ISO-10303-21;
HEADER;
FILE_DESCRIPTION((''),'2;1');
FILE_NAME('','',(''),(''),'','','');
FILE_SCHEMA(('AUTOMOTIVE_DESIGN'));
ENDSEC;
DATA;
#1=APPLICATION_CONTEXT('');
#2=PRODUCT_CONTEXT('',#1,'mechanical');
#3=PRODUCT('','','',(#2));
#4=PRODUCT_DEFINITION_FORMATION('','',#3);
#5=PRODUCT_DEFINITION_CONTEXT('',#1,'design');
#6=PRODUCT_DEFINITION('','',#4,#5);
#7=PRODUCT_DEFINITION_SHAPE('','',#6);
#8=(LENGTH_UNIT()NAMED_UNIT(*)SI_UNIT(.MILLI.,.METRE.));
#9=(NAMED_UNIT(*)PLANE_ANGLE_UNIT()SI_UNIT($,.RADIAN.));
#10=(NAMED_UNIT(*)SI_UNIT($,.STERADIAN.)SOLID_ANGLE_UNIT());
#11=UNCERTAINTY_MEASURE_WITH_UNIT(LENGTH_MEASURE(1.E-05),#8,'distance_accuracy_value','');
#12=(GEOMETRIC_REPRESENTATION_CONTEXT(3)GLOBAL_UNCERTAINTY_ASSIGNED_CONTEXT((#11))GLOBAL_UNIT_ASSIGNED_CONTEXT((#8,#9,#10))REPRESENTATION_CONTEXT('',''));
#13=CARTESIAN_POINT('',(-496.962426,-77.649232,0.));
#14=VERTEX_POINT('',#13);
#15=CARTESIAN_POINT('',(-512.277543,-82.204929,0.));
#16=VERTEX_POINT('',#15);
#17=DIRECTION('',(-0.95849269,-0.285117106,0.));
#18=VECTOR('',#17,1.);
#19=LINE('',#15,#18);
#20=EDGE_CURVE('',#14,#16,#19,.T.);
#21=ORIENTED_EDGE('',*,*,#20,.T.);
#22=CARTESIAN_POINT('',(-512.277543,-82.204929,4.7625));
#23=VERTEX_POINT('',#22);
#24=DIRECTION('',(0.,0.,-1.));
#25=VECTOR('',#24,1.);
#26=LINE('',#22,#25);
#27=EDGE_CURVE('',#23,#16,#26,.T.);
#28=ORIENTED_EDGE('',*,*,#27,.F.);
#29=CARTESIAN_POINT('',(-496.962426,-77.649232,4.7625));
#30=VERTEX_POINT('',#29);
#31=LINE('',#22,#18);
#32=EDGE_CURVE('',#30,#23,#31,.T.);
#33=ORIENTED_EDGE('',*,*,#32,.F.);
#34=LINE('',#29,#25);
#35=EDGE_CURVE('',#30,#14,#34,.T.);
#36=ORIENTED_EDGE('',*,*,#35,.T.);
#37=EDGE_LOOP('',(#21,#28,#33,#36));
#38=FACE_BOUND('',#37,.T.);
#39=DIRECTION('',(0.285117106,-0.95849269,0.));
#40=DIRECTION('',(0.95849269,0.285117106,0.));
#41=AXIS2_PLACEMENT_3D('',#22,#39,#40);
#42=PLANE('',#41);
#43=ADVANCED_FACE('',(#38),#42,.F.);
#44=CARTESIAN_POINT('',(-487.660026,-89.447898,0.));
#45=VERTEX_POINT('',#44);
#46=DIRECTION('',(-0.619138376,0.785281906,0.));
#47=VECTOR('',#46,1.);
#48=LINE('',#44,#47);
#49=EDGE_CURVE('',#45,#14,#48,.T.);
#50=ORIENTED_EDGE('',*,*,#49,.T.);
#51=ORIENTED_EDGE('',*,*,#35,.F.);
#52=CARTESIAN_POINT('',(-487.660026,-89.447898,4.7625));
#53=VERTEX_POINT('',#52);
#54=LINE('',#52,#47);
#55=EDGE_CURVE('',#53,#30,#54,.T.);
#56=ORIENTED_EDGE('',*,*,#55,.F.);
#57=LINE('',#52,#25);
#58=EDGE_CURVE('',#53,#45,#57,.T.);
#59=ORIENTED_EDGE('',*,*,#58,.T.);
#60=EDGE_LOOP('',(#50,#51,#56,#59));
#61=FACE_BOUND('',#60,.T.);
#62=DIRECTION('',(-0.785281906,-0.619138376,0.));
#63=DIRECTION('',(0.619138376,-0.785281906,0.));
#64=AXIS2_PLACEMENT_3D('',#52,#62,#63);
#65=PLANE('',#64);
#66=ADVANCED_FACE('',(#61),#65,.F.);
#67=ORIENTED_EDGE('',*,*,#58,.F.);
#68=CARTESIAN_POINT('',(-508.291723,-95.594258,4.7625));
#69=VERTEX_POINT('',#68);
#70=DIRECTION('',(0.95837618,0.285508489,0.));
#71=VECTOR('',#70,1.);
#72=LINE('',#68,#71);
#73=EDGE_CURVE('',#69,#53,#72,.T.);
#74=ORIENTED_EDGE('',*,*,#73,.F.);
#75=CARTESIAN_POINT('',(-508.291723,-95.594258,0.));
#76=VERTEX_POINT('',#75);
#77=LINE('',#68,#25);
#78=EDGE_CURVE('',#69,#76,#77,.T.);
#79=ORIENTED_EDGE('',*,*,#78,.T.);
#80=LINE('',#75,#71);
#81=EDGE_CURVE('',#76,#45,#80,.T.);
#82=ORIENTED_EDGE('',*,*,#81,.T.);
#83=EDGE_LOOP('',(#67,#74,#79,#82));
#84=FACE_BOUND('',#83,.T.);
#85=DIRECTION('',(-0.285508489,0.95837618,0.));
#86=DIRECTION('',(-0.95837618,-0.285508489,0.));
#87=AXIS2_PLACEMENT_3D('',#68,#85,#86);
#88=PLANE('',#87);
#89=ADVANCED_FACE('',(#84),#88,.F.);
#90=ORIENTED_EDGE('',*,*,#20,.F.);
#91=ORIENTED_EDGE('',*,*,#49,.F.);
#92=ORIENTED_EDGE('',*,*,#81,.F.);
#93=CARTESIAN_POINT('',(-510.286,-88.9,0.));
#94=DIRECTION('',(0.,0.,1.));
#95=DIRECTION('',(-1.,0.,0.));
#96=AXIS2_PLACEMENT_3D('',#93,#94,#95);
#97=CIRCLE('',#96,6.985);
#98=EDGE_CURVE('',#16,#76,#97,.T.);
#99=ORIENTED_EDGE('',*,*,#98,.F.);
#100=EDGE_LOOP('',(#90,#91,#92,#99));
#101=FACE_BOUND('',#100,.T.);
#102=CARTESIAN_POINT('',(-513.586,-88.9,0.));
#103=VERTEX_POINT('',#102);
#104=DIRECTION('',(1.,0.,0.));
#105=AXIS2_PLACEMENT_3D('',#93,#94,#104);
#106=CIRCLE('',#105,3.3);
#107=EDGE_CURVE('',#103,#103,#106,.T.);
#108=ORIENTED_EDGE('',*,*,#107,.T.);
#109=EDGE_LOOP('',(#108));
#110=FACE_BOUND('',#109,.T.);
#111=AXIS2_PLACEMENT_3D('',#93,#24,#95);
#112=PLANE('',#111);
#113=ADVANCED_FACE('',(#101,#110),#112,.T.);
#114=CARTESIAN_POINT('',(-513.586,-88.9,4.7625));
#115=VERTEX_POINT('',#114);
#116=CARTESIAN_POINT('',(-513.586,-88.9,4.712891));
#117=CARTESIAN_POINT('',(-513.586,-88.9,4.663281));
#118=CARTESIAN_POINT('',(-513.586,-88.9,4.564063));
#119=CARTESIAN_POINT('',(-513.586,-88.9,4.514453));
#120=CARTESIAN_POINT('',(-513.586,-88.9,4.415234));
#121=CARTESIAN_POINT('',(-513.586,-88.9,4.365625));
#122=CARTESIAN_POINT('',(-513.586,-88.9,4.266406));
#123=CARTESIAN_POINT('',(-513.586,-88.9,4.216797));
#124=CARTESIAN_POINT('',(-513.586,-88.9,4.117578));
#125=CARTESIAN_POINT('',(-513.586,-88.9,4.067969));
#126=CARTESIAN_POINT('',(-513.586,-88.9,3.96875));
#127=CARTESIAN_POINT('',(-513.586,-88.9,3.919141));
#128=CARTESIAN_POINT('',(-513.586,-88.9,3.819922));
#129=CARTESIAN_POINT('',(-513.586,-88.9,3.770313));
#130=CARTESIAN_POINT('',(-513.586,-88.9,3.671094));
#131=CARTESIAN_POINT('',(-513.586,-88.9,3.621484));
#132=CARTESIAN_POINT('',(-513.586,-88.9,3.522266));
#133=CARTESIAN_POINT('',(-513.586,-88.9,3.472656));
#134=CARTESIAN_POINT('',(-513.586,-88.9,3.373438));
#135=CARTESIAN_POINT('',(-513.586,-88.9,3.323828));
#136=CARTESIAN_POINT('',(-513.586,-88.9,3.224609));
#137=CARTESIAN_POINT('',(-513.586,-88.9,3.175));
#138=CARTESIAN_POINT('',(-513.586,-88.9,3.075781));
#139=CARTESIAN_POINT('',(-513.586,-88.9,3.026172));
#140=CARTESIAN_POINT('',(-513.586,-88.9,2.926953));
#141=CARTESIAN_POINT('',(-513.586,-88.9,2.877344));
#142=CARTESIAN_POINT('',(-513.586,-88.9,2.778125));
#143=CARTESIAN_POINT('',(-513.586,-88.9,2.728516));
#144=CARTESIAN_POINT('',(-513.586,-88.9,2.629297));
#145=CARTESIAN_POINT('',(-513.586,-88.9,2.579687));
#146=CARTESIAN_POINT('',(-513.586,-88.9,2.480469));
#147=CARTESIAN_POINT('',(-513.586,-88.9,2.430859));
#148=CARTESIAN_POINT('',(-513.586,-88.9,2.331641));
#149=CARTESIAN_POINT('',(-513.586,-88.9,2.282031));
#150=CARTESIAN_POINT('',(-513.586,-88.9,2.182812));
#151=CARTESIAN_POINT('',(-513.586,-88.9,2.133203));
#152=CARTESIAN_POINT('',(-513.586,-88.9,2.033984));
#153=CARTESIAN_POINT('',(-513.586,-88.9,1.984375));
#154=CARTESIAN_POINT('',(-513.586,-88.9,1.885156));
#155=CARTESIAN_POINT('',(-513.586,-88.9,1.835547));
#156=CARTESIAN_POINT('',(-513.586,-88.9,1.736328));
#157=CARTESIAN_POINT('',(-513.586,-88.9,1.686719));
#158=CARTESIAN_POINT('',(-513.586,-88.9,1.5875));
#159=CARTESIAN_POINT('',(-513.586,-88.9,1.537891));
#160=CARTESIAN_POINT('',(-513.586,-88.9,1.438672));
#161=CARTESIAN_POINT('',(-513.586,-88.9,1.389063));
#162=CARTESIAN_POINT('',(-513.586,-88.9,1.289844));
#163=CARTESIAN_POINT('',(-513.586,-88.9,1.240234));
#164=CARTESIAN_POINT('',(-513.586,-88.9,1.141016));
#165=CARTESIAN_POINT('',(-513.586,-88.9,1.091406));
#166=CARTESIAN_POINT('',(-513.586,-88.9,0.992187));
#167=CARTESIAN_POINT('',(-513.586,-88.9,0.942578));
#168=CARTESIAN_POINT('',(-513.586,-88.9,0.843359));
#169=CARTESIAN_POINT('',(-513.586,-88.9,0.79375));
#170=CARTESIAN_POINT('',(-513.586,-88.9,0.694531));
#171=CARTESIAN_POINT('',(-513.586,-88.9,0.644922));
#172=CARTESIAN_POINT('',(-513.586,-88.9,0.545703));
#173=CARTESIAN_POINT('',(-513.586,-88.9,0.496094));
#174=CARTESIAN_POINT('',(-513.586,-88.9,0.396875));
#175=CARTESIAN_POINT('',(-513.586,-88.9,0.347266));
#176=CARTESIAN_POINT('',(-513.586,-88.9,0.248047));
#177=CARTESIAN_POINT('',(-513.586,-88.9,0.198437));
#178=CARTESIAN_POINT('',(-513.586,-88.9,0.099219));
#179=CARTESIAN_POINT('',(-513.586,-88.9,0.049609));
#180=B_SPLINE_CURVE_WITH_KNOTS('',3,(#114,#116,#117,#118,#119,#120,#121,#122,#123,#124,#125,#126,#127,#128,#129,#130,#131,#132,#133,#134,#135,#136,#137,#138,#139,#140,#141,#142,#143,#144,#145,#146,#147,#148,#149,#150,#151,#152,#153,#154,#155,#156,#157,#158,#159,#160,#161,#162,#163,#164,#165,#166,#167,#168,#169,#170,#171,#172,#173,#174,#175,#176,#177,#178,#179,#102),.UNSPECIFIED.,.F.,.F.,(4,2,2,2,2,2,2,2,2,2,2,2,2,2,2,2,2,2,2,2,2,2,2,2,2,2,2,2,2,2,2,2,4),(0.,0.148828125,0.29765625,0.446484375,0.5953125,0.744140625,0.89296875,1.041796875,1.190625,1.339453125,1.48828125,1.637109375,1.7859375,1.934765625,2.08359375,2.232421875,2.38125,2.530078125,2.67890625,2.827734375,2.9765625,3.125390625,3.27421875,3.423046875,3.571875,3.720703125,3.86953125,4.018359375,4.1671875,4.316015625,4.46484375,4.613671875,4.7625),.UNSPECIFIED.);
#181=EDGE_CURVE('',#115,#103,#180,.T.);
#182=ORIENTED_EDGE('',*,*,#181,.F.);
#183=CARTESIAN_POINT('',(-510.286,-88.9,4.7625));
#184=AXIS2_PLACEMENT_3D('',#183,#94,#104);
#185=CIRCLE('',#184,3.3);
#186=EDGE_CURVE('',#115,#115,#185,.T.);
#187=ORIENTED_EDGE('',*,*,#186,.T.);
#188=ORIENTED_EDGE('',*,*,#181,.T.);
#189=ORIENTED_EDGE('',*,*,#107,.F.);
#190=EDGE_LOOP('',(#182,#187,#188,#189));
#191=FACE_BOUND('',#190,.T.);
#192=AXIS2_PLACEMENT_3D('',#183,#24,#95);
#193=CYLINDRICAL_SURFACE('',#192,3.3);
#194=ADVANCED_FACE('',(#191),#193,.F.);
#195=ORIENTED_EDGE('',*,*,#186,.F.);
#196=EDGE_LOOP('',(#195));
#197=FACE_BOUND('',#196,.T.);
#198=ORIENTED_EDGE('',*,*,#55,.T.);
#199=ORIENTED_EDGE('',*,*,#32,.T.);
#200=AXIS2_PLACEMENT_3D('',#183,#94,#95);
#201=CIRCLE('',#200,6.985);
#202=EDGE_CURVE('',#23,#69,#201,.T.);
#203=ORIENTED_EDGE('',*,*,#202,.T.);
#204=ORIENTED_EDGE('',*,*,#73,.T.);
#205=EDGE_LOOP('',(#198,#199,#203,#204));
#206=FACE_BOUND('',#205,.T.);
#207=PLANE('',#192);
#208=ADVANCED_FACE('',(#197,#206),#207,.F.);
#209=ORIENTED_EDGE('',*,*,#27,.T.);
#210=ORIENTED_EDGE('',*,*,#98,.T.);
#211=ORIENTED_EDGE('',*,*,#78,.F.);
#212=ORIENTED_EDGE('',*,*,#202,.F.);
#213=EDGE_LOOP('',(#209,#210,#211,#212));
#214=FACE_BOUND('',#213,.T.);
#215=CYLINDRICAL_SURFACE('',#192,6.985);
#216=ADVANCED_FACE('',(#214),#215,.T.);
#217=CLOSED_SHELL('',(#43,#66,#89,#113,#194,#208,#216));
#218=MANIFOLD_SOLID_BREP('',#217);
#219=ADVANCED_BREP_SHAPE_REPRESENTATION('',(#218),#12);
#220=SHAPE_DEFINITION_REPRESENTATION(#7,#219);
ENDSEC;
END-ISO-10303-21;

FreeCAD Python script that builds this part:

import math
import FreeCAD as App
import Part
import Sketcher
from FreeCAD import Vector
Q = App.Units.Quantity

doc = App.newDocument("Part")
body = doc.addObject("PartDesign::Body", "Body")

sketch1 = doc.addObject("Sketcher::SketchObject", "Sketch")
body.addObject(sketch1)
sketch1.AttachmentSupport = (doc.XY_Plane, [""])
sketch1.MapMode = "FlatFace"
sketch1.addGeometry(Part.LineSegment(Vector(-508.3, -95.6, 0), Vector(-487.7, -89.4, 0)), False)
sketch1.addGeometry(Part.LineSegment(Vector(-487.7, -89.4, 0), Vector(-497, -77.6, 0)), False)
sketch1.addGeometry(Part.LineSegment(Vector(-497, -77.6, 0), Vector(-512.3, -82.2, 0)), False)
sketch1.addGeometry(Part.ArcOfCircle(Part.Circle(Vector(-510.3, -88.9, 0), Vector(0, 0, 1), 7), math.radians(107), math.radians(287)), False)
sketch1.addGeometry(Part.Circle(Vector(-510.3, -88.9, 0), Vector(0, 0, 1), 3.3), False)
sketch1.addConstraint(Sketcher.Constraint("Coincident", 0, 2, 1, 1))
sketch1.addConstraint(Sketcher.Constraint("Coincident", 1, 2, 2, 1))
sketch1.addConstraint(Sketcher.Constraint("Tangent", 2, 2, 3, 1))
sketch1.addConstraint(Sketcher.Constraint("Tangent", 3, 2, 0, 1))
sketch1.addConstraint(Sketcher.Constraint("Coincident", 4, 3, 3, 3))
sketch1.addConstraint(Sketcher.Constraint("Radius", 3, Q("0.275 in")))
sketch1.addConstraint(Sketcher.Constraint("DistanceY", 3, 3, -1, 1, Q("3.5 in")))
sketch1.addConstraint(Sketcher.Constraint("Diameter", 4, Q("6.6 mm")))
sketch1.addConstraint(Sketcher.Constraint("DistanceX", 3, 3, -1, 1, Q("20.09 in")))
sketch1.addConstraint(Sketcher.Constraint("DistanceX", 1, 2, 0, 2, Q("9.3024 mm")))
sketch1.addConstraint(Sketcher.Constraint("Distance", 1, Q("15.024752 mm")))
sketch1.addConstraint(Sketcher.Constraint("DistanceY", 2, 2, -1, 1, Q("82.204929 mm")))
sketch1.addConstraint(Sketcher.Constraint("DistanceY", 0, 2, 2, 2, Q("7.242969 mm")))
pad1 = doc.addObject("PartDesign::Pad", "Pad")
body.addObject(pad1)
pad1.Profile = sketch1
pad1.Length = Q("0.1875 in")

doc.recompute()
